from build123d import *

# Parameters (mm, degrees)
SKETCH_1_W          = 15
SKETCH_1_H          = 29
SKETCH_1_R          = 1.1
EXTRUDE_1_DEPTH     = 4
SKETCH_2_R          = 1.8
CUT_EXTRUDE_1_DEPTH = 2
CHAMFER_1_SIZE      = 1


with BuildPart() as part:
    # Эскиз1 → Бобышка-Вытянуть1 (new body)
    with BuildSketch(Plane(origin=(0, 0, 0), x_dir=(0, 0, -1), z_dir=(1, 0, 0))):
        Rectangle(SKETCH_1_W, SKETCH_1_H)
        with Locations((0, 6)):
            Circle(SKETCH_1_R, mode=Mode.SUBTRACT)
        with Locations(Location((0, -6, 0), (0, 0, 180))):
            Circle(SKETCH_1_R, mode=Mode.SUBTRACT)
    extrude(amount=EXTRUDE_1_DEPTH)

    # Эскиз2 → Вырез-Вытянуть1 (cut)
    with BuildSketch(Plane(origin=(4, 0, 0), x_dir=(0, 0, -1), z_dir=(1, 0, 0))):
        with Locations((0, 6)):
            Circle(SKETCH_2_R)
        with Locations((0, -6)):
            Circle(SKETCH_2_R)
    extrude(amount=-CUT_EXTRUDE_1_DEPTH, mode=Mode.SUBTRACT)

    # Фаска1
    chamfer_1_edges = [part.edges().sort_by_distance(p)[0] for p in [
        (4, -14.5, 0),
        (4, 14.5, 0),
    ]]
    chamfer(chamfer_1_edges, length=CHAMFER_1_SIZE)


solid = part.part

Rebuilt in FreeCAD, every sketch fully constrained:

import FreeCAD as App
import Part
import Sketcher
from FreeCAD import Vector


def edges_at(feature, points):
    """Names of the edges that pass closest to the given points."""
    edges = feature.Shape.Edges
    near = lambda p: min(range(len(edges)), key=lambda i: edges[i].distToShape(Part.Vertex(*p))[0])
    return sorted({f"Edge{near(p) + 1}" for p in points})


def add_polygon(sketch, points):
    """Adds a closed chain of lines whose ends are joined by coincident constraints."""
    first, n = sketch.GeometryCount, len(points)
    for a, b in zip(points, points[1:] + points[:1]):
        sketch.addGeometry(Part.LineSegment(App.Vector(*a, 0), App.Vector(*b, 0)), False)
    for i in range(n):
        sketch.addConstraint(Sketcher.Constraint("Coincident", first + i, 2, first + (i + 1) % n, 1))

doc = App.newDocument("Part")
body = doc.addObject("PartDesign::Body", "Body")

# Sketch on YZ plane
sketch1 = body.newObject("Sketcher::SketchObject", "Sketch")
sketch1.AttachmentSupport = (doc.getObject("YZ_Plane"), [""])
sketch1.MapMode = "FlatFace"
add_polygon(sketch1, [(14.5, 7.5), (-14.5, 7.5), (-14.5, -7.5), (14.5, -7.5)])  # lines 0-3
sketch1.addGeometry(Part.Circle(Vector(-6, 0, 0), Vector(0, 0, 1), 1.1), False)  # 4
sketch1.addGeometry(Part.Circle(Vector(6, 0, 0), Vector(0, 0, 1), 1.1), False)  # 5
sketch1.addConstraint([
    Sketcher.Constraint("Horizontal", 0),
    Sketcher.Constraint("Vertical", 1),
    Sketcher.Constraint("Horizontal", 2),
    Sketcher.Constraint("Vertical", 3),
    Sketcher.Constraint("Equal", 4, 5),
    Sketcher.Constraint("Symmetric", 4, 3, 5, 3, -1, 1),
    Sketcher.Constraint("Symmetric", 0, 2, 2, 2, -1, 1),
    Sketcher.Constraint("PointOnObject", 4, 3, -1),
    Sketcher.Constraint("Diameter", 4, 2.2),
    Sketcher.Constraint("DistanceX", 0, 2, 0, 1, 29.0),
    Sketcher.Constraint("DistanceY", 1, 2, 1, 1, 15.0),
    Sketcher.Constraint("DistanceX", 4, 3, -1, 1, 6.0),
])
pad1 = body.newObject("PartDesign::Pad", "Pad")
pad1.Profile = sketch1
pad1.Length = 4

# Sketch on YZ plane
sketch2 = body.newObject("Sketcher::SketchObject", "Sketch001")
sketch2.AttachmentSupport = (doc.getObject("YZ_Plane"), [""])
sketch2.MapMode = "FlatFace"
sketch2.AttachmentOffset = App.Placement(Vector(0, 0, 4), App.Rotation())
sketch2.addGeometry([
    Part.Circle(Vector(6, 0, 0), Vector(0, 0, 1), 1.8),
    Part.Circle(Vector(-6, 0, 0), Vector(0, 0, 1), 1.8),
], False)
sketch2.addConstraint([
    Sketcher.Constraint("Equal", 0, 1),
    Sketcher.Constraint("Symmetric", 0, 3, 1, 3, -1, 1),
    Sketcher.Constraint("PointOnObject", 0, 3, -1),
    Sketcher.Constraint("Diameter", 0, 3.6),
    Sketcher.Constraint("DistanceX", -1, 1, 0, 3, 6.0),
])
pocket1 = body.newObject("PartDesign::Pocket", "Pocket")
pocket1.Profile = sketch2
pocket1.Length = 2
doc.recompute()

chamfer = body.newObject("PartDesign::Chamfer", "Chamfer")
chamfer.Base = (pocket1, edges_at(pocket1, [(4, -14.5, 0), (4, 14.5, 0)]))
chamfer.Size = 1

doc.recompute()
